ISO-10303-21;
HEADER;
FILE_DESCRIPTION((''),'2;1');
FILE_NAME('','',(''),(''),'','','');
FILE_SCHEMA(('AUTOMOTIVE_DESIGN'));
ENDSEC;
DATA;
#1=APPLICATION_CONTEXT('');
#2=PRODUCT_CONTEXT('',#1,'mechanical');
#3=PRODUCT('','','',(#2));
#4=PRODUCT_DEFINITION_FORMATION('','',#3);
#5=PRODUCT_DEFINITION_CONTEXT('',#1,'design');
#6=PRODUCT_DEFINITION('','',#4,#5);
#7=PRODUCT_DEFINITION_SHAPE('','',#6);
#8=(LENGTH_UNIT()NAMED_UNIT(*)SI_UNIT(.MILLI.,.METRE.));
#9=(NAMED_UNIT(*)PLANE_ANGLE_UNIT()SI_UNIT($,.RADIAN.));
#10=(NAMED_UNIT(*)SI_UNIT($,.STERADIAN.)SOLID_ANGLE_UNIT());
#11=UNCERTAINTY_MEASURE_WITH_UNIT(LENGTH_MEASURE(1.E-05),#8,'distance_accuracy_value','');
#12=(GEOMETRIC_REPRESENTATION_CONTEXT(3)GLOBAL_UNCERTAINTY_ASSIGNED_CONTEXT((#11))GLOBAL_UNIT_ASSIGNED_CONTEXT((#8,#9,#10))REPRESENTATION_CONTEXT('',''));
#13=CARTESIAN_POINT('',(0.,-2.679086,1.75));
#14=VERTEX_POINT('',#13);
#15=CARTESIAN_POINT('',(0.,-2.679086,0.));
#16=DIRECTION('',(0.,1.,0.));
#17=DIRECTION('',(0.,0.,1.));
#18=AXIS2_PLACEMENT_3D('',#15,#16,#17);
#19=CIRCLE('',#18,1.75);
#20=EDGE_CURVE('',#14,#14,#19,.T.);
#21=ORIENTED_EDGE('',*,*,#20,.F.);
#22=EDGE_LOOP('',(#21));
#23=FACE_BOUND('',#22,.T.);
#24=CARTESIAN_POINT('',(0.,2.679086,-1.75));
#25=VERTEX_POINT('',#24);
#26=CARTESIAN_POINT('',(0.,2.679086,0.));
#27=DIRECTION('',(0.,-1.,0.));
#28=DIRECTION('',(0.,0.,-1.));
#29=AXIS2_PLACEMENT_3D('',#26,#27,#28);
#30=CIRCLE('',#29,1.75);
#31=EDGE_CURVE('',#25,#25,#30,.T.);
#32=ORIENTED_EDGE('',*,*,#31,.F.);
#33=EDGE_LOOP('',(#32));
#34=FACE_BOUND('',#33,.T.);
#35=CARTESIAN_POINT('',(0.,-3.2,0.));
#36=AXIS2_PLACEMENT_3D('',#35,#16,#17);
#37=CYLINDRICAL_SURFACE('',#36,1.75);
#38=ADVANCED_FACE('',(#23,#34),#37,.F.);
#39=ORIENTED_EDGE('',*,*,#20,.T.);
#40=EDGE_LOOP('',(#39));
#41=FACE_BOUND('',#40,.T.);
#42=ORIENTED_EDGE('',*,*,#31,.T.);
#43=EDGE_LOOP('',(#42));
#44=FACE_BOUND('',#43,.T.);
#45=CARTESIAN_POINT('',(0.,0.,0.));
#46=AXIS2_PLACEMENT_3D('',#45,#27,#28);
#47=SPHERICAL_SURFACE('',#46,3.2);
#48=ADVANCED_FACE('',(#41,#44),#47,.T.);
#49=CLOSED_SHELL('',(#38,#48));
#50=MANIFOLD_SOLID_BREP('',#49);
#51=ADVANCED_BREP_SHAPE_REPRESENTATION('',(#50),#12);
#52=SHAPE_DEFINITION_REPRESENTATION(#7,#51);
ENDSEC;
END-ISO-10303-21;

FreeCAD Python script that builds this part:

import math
import FreeCAD as App
import Part
import Sketcher

V = App.Vector

doc = App.newDocument("Part")
params = doc.addObject("Spreadsheet::Sheet", "Params")
for row, (alias, value) in enumerate([
    ("sketch1_radius", "3.2 mm"),
    ("revolution_angle", "360 deg"),
    ("sketch2_diameter", "3.5 mm"),
], start=1):
    params.set(f"A{row}", alias)
    params.set(f"B{row}", "=" + value)
    params.setAlias(f"B{row}", alias)

body = doc.addObject("PartDesign::Body", "Body")

sketch1 = doc.addObject("Sketcher::SketchObject", "Sketch")
body.addObject(sketch1)
sketch1.AttachmentSupport = (doc.XY_Plane, [""])
sketch1.MapMode = "FlatFace"
sketch1.addGeometry([
    Part.LineSegment(V(-3.2, 0, 0), V(3.2, 0, 0)),
    Part.ArcOfCircle(Part.Circle(V(0, 0, 0), V(0, 0, 1), 3.2), math.radians(0), math.radians(180)),
], False)
sketch1.addConstraint([
    Sketcher.Constraint("Coincident", 0, 1, 1, 2),
    Sketcher.Constraint("Coincident", 1, 1, 0, 2),
    Sketcher.Constraint("Horizontal", 0),
    Sketcher.Constraint("Coincident", 1, 3, -1, 1),
    Sketcher.Constraint("PointOnObject", 0, 1, -1),
    Sketcher.Constraint("Radius", 1, 3.2),
])
sketch1.setExpression("Constraints[5]", "Params.sketch1_radius")
revolution = doc.addObject("PartDesign::Revolution", "Revolution")
body.addObject(revolution)
revolution.Profile = sketch1
revolution.ReferenceAxis = (sketch1, ["H_Axis"])
revolution.setExpression("Angle", "Params.revolution_angle")

sketch2 = doc.addObject("Sketcher::SketchObject", "Sketch001")
body.addObject(sketch2)
sketch2.AttachmentSupport = (doc.XZ_Plane, [""])
sketch2.MapMode = "FlatFace"
sketch2.addGeometry(Part.Circle(V(0, 0, 0), V(0, 0, 1), 1.75), False)
sketch2.addConstraint([
    Sketcher.Constraint("Coincident", 0, 3, -1, 1),
    Sketcher.Constraint("Diameter", 0, 3.5),
])
sketch2.setExpression("Constraints[1]", "Params.sketch2_diameter")
pocket1 = doc.addObject("PartDesign::Pocket", "Pocket")
body.addObject(pocket1)
pocket1.Profile = sketch2
pocket1.Type = "ThroughAll"
pocket1.Midplane = True

doc.recompute()
